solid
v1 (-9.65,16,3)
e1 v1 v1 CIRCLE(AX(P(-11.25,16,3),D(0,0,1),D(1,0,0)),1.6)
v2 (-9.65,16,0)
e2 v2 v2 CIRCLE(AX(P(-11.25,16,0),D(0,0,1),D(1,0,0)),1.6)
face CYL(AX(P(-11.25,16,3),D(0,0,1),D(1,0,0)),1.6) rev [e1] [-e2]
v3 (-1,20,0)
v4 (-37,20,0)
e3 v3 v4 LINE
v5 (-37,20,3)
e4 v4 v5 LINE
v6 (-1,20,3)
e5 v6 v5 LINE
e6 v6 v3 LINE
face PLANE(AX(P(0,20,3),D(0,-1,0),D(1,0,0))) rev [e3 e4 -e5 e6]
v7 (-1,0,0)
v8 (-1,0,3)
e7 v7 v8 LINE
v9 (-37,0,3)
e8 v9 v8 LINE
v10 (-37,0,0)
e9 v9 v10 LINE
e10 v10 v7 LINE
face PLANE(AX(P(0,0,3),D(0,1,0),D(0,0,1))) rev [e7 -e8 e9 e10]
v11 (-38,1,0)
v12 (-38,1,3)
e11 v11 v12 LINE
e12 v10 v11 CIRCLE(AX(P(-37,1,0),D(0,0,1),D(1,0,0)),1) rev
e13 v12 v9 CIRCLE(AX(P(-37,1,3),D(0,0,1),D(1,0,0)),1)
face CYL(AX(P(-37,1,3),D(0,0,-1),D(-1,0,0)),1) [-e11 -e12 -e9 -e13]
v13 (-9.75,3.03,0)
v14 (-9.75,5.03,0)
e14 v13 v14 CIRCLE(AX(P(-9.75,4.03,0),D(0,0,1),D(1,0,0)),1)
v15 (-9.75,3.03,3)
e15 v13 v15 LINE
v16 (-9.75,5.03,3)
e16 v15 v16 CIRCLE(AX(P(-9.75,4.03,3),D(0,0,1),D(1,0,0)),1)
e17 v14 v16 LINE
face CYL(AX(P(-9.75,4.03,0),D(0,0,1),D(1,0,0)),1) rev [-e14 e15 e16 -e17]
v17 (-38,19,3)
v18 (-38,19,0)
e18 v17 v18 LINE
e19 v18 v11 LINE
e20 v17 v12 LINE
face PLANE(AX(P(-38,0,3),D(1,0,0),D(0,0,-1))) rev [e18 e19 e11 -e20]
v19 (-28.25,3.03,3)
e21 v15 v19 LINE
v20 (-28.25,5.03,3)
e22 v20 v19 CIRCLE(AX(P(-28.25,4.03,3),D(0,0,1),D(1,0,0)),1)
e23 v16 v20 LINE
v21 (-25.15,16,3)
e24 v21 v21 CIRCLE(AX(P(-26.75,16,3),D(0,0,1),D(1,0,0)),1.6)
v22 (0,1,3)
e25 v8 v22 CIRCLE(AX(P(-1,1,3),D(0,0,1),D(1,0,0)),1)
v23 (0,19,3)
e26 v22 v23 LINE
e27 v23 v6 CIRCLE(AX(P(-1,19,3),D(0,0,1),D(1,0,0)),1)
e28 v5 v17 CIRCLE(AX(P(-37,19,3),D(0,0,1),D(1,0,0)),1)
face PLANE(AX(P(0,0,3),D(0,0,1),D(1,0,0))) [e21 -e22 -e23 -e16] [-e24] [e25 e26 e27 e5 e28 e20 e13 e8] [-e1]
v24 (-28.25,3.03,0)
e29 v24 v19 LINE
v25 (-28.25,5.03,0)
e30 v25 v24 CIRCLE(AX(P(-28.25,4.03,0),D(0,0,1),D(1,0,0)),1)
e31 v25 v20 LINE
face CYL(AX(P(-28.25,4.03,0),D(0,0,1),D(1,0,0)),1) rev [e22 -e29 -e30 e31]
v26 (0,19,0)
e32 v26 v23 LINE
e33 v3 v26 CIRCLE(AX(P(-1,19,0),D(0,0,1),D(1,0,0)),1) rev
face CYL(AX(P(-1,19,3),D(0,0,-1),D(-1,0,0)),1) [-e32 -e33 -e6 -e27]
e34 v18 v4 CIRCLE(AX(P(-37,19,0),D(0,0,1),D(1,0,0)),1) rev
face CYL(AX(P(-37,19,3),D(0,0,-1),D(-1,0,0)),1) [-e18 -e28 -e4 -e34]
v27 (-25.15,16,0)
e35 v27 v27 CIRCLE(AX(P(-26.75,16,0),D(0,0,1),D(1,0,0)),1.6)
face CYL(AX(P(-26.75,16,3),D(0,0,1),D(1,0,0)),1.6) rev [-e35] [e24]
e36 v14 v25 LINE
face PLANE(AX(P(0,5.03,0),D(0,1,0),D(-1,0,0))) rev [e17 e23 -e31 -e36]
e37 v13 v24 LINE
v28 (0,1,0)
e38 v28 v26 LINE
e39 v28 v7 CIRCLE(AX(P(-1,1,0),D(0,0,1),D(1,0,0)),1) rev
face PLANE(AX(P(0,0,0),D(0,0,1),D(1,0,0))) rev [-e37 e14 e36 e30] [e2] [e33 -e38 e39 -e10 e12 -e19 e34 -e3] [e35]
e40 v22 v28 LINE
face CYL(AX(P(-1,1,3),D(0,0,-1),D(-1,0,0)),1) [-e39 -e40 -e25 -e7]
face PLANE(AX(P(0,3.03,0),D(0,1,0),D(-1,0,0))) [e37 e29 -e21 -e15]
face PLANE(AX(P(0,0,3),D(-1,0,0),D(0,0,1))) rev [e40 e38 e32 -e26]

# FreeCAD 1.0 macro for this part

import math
import FreeCAD as App
import Part
import Sketcher


def edges_at(feature, points):
    """Names of the edges that pass closest to the given points."""
    edges = feature.Shape.Edges
    near = lambda p: min(range(len(edges)), key=lambda i: edges[i].distToShape(Part.Vertex(*p))[0])
    return sorted({f"Edge{near(p) + 1}" for p in points})


def add_polygon(sketch, points):
    """Adds a closed chain of lines whose ends are joined by coincident constraints."""
    first, n = sketch.GeometryCount, len(points)
    for a, b in zip(points, points[1:] + points[:1]):
        sketch.addGeometry(Part.LineSegment(App.Vector(*a, 0), App.Vector(*b, 0)), False)
    for i in range(n):
        sketch.addConstraint(Sketcher.Constraint("Coincident", first + i, 2, first + (i + 1) % n, 1))

doc = App.newDocument("Part")
body = doc.addObject("PartDesign::Body", "Body")

# Sketch on XY plane
sketch1 = body.newObject("Sketcher::SketchObject", "Sketch")
sketch1.AttachmentSupport = (doc.getObject("XY_Plane"), [""])
sketch1.MapMode = "FlatFace"
add_polygon(sketch1, [(-38, 20), (-38, 0), (0, 0), (0, 20)])  # lines 0-3
sketch1.addConstraint([
    Sketcher.Constraint("Vertical", 0),
    Sketcher.Constraint("Horizontal", 1),
    Sketcher.Constraint("Vertical", 2),
    Sketcher.Constraint("Horizontal", 3),
    Sketcher.Constraint("Coincident", 1, 2, -1, 1),
    Sketcher.Constraint("DistanceX", 1, 1, 1, 2, 38.0),
    Sketcher.Constraint("DistanceY", 0, 2, 0, 1, 20.0),
])
pad1 = body.newObject("PartDesign::Pad", "Pad")
pad1.Profile = sketch1
pad1.Length = 3

# Sketch on XY plane
sketch2 = body.newObject("Sketcher::SketchObject", "Sketch001")
sketch2.AttachmentSupport = (doc.getObject("XY_Plane"), [""])
sketch2.MapMode = "FlatFace"
sketch2.AttachmentOffset = App.Placement(App.Vector(0, 0, 3), App.Rotation())
sketch2.addGeometry([
    Part.Circle(App.Vector(-11.2, 16, 0), App.Vector(0, 0, 1), 1.6),
    Part.Circle(App.Vector(-26.8, 16, 0), App.Vector(0, 0, 1), 1.6),
], False)
sketch2.addConstraint([
    Sketcher.Constraint("Equal", 0, 1),
    Sketcher.Constraint("Horizontal", 0, 3, 1, 3),
    Sketcher.Constraint("Diameter", 0, 3.2),
    Sketcher.Constraint("DistanceY", -1, 1, 0, 3, 16.0),
    Sketcher.Constraint("DistanceX", 1, 3, 0, 3, 15.5),
    Sketcher.Constraint("DistanceX", 0, 3, -1, 1, 11.25),
])
doc.recompute()
hole = body.newObject("PartDesign::Hole", "Hole")
hole.Profile = sketch2
hole.ThreadType = "None"
hole.Diameter = 3.2
hole.DepthType = "Dimension"
hole.Depth = 20
hole.DrillPoint = "Angled"
hole.DrillPointAngle = 118

# Sketch on XY plane
sketch3 = body.newObject("Sketcher::SketchObject", "Sketch002")
sketch3.AttachmentSupport = (doc.getObject("XY_Plane"), [""])
sketch3.MapMode = "FlatFace"
sketch3.AttachmentOffset = App.Placement(App.Vector(0, 0, 3), App.Rotation())
sketch3.addGeometry([
    Part.LineSegment(App.Vector(-9.8, 5, 0), App.Vector(-28.2, 5, 0)),
    Part.ArcOfCircle(Part.Circle(App.Vector(-28.2, 4, 0), App.Vector(0, 0, 1), 1), math.radians(90), math.radians(270)),
    Part.LineSegment(App.Vector(-28.2, 3, 0), App.Vector(-9.8, 3, 0)),
    Part.ArcOfCircle(Part.Circle(App.Vector(-9.8, 4, 0), App.Vector(0, 0, 1), 1), math.radians(-90), math.radians(90)),
], False)
sketch3.addConstraint([
    Sketcher.Constraint("Tangent", 0, 2, 1, 1),
    Sketcher.Constraint("Tangent", 1, 2, 2, 1),
    Sketcher.Constraint("Tangent", 2, 2, 3, 1),
    Sketcher.Constraint("Tangent", 3, 2, 0, 1),
    Sketcher.Constraint("Horizontal", 0),
    Sketcher.Constraint("Horizontal", 2),
    Sketcher.Constraint("Radius", 1, 1.0),
    Sketcher.Constraint("DistanceX", 0, 2, 0, 1, 18.5),
    Sketcher.Constraint("DistanceX", 1, 3, -1, 1, 28.25),
    Sketcher.Constraint("DistanceY", -1, 1, 1, 3, 4.03),
])
pocket1 = body.newObject("PartDesign::Pocket", "Pocket")
pocket1.Profile = sketch3
pocket1.Length = 3
doc.recompute()

fillet = body.newObject("PartDesign::Fillet", "Fillet")
fillet.Base = (pocket1, edges_at(pocket1, [
    (0, 0, 1.5),
    (-38, 0, 1.5),
    (-38, 20, 1.5),
    (0, 20, 1.5),
]))
fillet.Radius = 1

doc.recompute()
